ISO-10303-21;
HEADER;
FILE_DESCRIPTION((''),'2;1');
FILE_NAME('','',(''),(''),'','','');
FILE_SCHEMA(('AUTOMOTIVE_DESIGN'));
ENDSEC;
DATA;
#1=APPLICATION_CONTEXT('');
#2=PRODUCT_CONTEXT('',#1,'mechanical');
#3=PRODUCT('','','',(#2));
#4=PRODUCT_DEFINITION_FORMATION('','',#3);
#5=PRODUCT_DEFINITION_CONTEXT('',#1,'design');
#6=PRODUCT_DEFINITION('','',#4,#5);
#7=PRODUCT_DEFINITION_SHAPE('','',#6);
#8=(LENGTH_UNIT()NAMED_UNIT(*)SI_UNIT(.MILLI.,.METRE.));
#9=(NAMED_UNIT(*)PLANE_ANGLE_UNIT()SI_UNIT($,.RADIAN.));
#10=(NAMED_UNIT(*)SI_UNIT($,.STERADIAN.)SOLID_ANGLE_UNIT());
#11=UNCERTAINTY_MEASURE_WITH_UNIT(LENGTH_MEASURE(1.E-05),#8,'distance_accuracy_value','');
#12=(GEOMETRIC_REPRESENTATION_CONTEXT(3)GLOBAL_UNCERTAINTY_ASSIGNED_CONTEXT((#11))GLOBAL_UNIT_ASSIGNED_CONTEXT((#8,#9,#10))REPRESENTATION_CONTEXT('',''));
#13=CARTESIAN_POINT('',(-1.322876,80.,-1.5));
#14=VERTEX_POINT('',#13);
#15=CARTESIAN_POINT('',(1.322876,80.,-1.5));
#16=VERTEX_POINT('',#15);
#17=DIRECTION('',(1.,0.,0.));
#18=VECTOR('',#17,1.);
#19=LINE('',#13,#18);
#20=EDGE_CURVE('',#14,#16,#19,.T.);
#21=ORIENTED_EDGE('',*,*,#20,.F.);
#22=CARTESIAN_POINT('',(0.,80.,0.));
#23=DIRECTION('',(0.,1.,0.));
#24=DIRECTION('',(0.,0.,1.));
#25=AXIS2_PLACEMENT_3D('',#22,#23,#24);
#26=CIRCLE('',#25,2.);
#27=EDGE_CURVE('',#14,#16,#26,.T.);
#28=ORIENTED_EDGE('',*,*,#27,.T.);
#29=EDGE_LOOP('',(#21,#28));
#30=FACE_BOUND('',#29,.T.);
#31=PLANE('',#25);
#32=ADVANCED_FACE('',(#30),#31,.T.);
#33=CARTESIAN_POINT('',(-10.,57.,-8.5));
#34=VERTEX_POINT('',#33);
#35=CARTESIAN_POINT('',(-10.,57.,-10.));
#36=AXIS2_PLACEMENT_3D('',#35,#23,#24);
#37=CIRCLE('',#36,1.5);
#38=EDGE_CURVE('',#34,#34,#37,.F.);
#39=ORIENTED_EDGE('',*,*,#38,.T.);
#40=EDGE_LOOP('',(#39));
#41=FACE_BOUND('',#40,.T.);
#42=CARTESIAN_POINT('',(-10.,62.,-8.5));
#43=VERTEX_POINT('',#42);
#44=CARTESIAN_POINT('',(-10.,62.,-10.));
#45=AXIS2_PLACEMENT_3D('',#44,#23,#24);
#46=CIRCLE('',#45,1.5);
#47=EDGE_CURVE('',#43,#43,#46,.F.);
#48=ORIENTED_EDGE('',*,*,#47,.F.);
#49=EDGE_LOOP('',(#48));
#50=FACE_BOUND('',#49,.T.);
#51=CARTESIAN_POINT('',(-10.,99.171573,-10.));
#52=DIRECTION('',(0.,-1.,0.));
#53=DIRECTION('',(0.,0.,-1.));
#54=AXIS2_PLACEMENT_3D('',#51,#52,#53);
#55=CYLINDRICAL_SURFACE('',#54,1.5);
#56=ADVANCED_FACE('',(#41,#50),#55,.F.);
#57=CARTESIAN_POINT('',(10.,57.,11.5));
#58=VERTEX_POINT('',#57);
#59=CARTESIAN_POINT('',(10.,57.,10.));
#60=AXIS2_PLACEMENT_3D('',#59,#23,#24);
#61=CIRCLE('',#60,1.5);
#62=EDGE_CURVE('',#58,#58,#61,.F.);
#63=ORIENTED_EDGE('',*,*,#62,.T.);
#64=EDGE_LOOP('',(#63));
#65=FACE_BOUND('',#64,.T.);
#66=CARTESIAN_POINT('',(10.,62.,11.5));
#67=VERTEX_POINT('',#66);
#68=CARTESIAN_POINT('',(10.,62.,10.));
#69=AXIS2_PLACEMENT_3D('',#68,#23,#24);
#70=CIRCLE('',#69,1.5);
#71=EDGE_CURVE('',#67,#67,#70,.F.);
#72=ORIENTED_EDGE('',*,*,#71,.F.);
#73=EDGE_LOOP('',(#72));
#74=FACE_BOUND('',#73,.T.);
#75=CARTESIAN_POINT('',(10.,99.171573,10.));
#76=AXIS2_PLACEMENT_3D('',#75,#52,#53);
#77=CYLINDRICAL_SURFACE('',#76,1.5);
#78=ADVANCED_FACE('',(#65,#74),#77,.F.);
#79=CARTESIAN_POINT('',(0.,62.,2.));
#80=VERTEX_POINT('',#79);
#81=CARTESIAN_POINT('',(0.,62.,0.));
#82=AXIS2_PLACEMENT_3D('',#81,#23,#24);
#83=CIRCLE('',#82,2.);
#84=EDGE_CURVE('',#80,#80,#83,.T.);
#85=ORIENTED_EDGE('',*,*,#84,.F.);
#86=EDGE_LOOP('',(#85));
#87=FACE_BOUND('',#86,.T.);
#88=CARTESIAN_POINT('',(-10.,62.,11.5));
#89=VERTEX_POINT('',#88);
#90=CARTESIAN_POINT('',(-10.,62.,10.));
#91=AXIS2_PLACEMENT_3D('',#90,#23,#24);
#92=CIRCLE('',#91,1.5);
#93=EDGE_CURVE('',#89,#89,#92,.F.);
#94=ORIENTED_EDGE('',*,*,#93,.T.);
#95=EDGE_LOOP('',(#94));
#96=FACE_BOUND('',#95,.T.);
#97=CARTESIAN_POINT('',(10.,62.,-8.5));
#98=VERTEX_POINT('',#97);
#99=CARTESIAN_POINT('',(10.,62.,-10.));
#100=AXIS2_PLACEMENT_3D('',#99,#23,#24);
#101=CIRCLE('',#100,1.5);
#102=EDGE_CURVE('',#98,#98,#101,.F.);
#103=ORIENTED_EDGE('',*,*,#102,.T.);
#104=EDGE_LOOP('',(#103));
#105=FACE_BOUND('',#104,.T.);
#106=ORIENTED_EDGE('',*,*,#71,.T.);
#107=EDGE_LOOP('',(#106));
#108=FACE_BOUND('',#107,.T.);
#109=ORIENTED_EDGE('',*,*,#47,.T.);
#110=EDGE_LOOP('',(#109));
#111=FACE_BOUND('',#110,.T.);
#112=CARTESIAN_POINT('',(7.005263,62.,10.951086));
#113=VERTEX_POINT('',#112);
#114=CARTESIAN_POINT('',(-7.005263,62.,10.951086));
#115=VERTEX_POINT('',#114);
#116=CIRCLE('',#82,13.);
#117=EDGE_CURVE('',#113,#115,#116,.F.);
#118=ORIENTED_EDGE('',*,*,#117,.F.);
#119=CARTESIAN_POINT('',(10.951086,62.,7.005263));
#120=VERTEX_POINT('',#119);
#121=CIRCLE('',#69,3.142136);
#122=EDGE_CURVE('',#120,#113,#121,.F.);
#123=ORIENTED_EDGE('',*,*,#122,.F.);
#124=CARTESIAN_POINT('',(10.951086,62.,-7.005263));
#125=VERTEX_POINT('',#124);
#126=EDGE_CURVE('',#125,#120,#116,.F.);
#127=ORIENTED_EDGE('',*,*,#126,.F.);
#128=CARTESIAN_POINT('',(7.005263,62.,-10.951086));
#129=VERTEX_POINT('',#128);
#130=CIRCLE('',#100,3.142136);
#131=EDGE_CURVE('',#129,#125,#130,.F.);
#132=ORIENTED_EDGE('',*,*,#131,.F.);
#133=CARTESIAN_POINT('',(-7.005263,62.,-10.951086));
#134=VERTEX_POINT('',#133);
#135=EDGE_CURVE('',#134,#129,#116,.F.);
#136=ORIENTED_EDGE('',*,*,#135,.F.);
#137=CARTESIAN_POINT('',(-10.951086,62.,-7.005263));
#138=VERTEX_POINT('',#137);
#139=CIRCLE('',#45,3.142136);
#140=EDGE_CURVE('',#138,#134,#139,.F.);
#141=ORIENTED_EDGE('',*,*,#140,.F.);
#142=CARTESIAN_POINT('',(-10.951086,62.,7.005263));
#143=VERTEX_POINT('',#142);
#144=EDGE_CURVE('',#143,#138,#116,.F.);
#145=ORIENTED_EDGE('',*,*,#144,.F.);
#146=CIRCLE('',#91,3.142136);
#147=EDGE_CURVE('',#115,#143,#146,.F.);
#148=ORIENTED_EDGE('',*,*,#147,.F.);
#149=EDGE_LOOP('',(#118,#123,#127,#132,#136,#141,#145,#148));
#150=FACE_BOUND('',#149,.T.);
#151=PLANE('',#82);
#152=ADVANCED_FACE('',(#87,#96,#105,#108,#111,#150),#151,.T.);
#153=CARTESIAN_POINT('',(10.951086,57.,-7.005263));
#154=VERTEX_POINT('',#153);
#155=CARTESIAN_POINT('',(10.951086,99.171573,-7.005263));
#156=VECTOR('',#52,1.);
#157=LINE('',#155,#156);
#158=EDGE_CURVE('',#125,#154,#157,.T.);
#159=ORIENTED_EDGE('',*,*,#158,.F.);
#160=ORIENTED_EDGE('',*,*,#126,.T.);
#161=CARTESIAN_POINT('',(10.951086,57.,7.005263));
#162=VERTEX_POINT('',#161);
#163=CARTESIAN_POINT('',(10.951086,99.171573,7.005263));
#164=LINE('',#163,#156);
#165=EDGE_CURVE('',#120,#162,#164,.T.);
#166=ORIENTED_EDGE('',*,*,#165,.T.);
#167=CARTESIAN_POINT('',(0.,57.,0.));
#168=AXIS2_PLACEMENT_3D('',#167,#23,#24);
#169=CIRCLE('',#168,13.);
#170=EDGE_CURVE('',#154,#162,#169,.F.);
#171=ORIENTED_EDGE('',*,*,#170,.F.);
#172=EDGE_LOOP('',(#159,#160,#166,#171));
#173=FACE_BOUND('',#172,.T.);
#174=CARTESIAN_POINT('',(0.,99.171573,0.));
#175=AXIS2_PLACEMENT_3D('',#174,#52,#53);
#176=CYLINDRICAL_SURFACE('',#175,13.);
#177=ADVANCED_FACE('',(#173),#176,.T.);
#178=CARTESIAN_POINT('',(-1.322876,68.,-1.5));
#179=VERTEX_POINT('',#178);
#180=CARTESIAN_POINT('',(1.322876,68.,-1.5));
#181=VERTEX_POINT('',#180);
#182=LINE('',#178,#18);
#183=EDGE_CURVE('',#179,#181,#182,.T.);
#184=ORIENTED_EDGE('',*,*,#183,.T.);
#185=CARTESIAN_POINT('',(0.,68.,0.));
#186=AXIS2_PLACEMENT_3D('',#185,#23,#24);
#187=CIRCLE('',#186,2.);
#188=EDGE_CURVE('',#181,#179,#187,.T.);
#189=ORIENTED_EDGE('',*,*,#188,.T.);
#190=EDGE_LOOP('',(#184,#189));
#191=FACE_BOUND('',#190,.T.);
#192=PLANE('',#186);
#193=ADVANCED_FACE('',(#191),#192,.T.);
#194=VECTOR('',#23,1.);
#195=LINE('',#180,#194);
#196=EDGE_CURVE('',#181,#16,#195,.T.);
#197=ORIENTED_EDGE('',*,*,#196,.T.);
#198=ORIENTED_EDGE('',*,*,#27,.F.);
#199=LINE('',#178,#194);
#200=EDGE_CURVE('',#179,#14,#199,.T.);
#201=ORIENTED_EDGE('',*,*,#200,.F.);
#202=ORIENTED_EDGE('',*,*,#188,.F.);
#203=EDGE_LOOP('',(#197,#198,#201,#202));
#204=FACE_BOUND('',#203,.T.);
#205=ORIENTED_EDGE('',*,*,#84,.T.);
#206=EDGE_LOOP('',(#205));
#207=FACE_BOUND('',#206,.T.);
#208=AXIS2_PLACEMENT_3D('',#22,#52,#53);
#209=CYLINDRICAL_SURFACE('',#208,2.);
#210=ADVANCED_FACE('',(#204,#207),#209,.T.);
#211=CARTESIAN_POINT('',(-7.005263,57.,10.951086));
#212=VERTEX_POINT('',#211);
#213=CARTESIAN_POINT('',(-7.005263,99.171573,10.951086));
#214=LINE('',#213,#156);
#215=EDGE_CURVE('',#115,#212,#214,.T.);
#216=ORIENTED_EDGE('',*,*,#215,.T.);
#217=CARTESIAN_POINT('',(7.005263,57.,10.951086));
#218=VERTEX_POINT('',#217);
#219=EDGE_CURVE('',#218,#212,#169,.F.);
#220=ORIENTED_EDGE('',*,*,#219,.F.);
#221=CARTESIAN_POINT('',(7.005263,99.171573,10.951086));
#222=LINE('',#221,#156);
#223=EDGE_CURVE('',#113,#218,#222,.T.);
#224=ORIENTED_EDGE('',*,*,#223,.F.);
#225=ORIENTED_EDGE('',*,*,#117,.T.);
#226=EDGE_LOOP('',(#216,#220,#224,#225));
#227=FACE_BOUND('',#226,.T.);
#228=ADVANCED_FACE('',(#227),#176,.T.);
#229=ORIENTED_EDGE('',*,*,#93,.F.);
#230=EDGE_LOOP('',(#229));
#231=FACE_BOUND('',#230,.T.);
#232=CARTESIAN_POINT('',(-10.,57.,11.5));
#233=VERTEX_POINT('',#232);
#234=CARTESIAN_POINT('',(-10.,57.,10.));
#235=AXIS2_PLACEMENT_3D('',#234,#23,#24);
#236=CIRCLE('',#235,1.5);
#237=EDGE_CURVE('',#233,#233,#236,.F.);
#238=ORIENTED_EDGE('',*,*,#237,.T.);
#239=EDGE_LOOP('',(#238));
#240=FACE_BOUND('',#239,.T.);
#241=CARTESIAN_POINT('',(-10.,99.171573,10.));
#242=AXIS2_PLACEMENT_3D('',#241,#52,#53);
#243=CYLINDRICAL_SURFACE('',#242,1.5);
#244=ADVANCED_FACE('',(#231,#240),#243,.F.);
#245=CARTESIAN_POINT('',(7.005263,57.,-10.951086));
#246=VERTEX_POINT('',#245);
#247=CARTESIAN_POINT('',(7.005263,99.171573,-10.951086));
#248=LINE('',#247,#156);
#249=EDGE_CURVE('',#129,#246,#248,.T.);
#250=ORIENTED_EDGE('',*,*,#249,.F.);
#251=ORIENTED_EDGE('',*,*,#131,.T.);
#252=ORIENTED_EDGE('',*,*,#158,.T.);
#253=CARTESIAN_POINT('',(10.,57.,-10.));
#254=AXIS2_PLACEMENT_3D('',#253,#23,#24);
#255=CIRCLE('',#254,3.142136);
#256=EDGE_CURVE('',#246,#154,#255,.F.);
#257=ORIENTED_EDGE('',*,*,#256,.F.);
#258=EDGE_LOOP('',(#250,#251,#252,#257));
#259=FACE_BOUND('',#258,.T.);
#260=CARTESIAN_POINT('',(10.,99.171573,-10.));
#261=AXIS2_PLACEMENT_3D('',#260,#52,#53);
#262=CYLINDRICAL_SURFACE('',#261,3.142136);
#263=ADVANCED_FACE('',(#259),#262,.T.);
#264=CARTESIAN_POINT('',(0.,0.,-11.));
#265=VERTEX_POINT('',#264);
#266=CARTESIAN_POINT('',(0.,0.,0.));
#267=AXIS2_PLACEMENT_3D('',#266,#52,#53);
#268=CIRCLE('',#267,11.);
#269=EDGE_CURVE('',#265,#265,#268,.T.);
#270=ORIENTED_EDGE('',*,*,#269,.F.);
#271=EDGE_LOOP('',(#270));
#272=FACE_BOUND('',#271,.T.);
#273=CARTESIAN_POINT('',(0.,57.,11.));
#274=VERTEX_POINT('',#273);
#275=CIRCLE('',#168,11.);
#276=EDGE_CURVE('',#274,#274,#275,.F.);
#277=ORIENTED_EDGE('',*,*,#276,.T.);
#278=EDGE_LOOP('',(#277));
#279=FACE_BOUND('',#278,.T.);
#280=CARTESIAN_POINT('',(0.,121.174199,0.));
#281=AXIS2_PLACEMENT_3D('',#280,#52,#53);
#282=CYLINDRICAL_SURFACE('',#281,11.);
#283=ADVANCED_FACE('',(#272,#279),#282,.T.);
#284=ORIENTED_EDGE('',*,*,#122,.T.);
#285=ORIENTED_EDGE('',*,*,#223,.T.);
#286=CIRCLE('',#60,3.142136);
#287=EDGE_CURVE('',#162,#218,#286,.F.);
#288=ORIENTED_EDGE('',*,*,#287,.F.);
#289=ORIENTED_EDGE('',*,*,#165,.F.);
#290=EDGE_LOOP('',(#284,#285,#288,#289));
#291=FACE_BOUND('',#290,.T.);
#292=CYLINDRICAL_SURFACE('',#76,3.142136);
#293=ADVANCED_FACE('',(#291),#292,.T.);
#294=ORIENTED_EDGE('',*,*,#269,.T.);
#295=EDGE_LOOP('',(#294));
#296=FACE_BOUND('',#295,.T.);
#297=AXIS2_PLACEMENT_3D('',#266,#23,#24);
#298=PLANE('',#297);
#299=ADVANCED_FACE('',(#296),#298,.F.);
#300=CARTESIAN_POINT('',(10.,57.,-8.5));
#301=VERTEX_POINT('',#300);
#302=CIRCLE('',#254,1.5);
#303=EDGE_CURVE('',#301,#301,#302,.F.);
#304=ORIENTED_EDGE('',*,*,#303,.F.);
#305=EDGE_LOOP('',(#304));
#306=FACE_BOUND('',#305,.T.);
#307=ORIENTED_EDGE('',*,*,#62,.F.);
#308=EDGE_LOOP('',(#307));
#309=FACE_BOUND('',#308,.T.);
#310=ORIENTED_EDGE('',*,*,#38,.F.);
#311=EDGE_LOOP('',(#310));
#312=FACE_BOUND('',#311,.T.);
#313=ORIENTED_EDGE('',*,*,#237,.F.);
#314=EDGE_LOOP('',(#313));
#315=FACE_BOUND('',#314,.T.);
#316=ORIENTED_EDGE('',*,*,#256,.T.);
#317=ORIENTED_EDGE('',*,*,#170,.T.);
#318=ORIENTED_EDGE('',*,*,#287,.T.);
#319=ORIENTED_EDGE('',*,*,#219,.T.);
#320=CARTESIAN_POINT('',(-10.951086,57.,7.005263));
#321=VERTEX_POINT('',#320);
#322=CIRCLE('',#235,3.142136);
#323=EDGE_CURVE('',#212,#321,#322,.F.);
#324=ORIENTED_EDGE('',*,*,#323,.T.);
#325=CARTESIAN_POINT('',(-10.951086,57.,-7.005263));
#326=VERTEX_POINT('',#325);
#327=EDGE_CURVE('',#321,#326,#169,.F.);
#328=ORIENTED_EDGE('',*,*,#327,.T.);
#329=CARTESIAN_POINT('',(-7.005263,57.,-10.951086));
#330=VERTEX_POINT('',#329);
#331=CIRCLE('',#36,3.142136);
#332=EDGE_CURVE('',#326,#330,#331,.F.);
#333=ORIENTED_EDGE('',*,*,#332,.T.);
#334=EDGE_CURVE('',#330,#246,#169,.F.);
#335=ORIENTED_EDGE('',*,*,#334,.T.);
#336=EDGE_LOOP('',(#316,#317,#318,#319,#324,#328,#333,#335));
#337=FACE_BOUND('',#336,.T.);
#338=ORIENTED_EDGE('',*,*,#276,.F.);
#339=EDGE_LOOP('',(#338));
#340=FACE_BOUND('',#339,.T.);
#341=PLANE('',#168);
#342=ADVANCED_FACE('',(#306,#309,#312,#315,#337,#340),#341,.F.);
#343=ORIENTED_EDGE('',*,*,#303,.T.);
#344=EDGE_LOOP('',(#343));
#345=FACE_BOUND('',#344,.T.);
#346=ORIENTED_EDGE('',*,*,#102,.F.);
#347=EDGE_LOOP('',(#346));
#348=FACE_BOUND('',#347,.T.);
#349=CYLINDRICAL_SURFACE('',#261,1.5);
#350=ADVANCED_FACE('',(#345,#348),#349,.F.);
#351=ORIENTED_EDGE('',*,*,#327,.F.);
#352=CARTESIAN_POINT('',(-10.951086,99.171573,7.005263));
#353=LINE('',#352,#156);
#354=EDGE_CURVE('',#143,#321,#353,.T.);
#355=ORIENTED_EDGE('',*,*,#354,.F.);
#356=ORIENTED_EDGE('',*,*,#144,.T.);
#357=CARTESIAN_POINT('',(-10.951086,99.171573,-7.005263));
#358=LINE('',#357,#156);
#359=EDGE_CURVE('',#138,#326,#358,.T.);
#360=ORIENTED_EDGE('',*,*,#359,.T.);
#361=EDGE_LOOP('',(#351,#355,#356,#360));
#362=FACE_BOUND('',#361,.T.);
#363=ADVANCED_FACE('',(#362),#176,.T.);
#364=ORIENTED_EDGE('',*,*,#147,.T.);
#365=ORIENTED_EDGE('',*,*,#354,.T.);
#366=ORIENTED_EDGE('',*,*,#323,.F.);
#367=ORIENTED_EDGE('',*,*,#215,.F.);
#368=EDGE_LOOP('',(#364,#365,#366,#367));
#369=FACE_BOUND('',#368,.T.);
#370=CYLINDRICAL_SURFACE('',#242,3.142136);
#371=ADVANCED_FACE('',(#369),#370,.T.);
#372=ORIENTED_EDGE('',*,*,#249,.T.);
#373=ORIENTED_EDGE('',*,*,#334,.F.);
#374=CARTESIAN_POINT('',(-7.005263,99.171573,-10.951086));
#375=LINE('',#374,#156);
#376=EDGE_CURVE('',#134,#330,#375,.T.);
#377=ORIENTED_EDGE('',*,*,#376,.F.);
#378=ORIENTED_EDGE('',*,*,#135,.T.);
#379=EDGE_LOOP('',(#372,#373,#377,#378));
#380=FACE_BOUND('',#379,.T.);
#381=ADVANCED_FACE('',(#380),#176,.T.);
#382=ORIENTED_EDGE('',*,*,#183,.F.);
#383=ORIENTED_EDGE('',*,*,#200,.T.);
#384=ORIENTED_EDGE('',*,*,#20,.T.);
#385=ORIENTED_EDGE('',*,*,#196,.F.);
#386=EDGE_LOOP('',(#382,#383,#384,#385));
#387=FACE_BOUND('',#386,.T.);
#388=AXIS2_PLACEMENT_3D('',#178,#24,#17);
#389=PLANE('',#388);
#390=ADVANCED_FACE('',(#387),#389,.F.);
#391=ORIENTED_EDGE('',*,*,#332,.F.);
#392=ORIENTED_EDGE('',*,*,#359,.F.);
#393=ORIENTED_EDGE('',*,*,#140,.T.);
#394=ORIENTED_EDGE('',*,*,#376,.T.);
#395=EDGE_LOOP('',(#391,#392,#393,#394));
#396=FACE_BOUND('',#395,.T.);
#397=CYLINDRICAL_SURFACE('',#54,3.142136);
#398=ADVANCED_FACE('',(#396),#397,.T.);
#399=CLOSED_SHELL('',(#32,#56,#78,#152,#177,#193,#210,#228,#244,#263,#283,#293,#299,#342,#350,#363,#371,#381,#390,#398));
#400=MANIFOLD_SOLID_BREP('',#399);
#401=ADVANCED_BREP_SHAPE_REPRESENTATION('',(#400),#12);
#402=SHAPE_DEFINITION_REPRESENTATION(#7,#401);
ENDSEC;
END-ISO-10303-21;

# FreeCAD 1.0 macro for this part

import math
import FreeCAD as App
import Part
import Sketcher

doc = App.newDocument("Part")
params = doc.addObject("Spreadsheet::Sheet", "Params")
for row, (alias, value) in enumerate([
    ("sketch1_diameter", "22 mm"),
    ("pad1_length", "62 mm"),
    ("sketch2_diameter", "4 mm"),
    ("pad2_length", "18 mm"),
    ("sketch3_diameter", "3 mm"),
    ("sketch3_diameter2", "22 mm"),
    ("sketch3_radius", "13 mm"),
    ("pad3_length", "62 mm"),
    ("sketch4_diameter", "22 mm"),
    ("pocket1_length", "57 mm"),
    ("sketch5_radius", "2 mm"),
    ("pocket2_length", "12 mm"),
], start=1):
    params.set(f"A{row}", alias)
    params.set(f"B{row}", "=" + value)
    params.setAlias(f"B{row}", alias)

body = doc.addObject("PartDesign::Body", "Body")

# Sketch on XZ plane
sketch1 = doc.addObject("Sketcher::SketchObject", "Sketch")
body.addObject(sketch1)
sketch1.AttachmentSupport = (doc.XZ_Plane, [""])
sketch1.MapMode = "FlatFace"
sketch1.addGeometry(Part.Circle(App.Vector(0, 0, 0), App.Vector(0, 0, 1), 11), False)
sketch1.addConstraint([
    Sketcher.Constraint("Coincident", 0, 3, -1, 1),
    Sketcher.Constraint("Diameter", 0, 22.0),
])
sketch1.setExpression("Constraints[1]", "Params.sketch1_diameter")
pad1 = doc.addObject("PartDesign::Pad", "Pad")
body.addObject(pad1)
pad1.Profile = sketch1
pad1.setExpression("Length", "Params.pad1_length")
pad1.Reversed = True

# Sketch on XZ plane
sketch2 = doc.addObject("Sketcher::SketchObject", "Sketch001")
body.addObject(sketch2)
sketch2.AttachmentSupport = (doc.XZ_Plane, [""])
sketch2.MapMode = "FlatFace"
sketch2.AttachmentOffset = App.Placement(App.Vector(0, 0, -62), App.Rotation())
sketch2.addGeometry(Part.Circle(App.Vector(0, 0, 0), App.Vector(0, 0, 1), 2), False)
sketch2.addConstraint([
    Sketcher.Constraint("Coincident", 0, 3, -1, 1),
    Sketcher.Constraint("Diameter", 0, 4.0),
])
sketch2.setExpression("Constraints[1]", "Params.sketch2_diameter")
pad2 = doc.addObject("PartDesign::Pad", "Pad001")
body.addObject(pad2)
pad2.Profile = sketch2
pad2.setExpression("Length", "Params.pad2_length")
pad2.Reversed = True

# Sketch on XZ plane
sketch3 = doc.addObject("Sketcher::SketchObject", "Sketch002")
body.addObject(sketch3)
sketch3.AttachmentSupport = (doc.XZ_Plane, [""])
sketch3.MapMode = "FlatFace"
sketch3.addGeometry([
    Part.ArcOfCircle(Part.Circle(App.Vector(0, 0, 0), App.Vector(0, 0, 1), 13), math.radians(-33), math.radians(33)),  # 0
    Part.ArcOfCircle(Part.Circle(App.Vector(10, 10, 0), App.Vector(0, 0, 1), 3.1), math.radians(-72), math.radians(162)),  # 1
    Part.ArcOfCircle(Part.Circle(App.Vector(0, 0, 0), App.Vector(0, 0, 1), 13), math.radians(57), math.radians(123)),  # 2
    Part.ArcOfCircle(Part.Circle(App.Vector(-10, 10, 0), App.Vector(0, 0, 1), 3.1), math.radians(18), math.radians(252)),  # 3
    Part.ArcOfCircle(Part.Circle(App.Vector(0, 0, 0), App.Vector(0, 0, 1), 13), math.radians(147), math.radians(213)),  # 4
    Part.ArcOfCircle(Part.Circle(App.Vector(-10, -10, 0), App.Vector(0, 0, 1), 3.1), math.radians(108), math.radians(342)),  # 5
    Part.ArcOfCircle(Part.Circle(App.Vector(0, 0, 0), App.Vector(0, 0, 1), 13), math.radians(-123), math.radians(-57)),  # 6
    Part.ArcOfCircle(Part.Circle(App.Vector(10, -10, 0), App.Vector(0, 0, 1), 3.1), math.radians(-162), math.radians(72)),  # 7
    Part.Circle(App.Vector(-10, -10, 0), App.Vector(0, 0, 1), 1.5),  # 8
    Part.Circle(App.Vector(10, -10, 0), App.Vector(0, 0, 1), 1.5),  # 9
    Part.Circle(App.Vector(-10, 10, 0), App.Vector(0, 0, 1), 1.5),  # 10
    Part.Circle(App.Vector(0, 0, 0), App.Vector(0, 0, 1), 11),  # 11
    Part.Circle(App.Vector(10, 10, 0), App.Vector(0, 0, 1), 1.5),  # 12
], False)
sketch3.addConstraint([
    Sketcher.Constraint("Coincident", 0, 2, 1, 1),
    Sketcher.Constraint("Coincident", 1, 2, 2, 1),
    Sketcher.Constraint("Coincident", 2, 2, 3, 1),
    Sketcher.Constraint("Coincident", 3, 2, 4, 1),
    Sketcher.Constraint("Coincident", 4, 2, 5, 1),
    Sketcher.Constraint("Coincident", 5, 2, 6, 1),
    Sketcher.Constraint("Coincident", 6, 2, 7, 1),
    Sketcher.Constraint("Coincident", 7, 2, 0, 1),
    Sketcher.Constraint("Coincident", 0, 3, -1, 1),
    Sketcher.Constraint("Coincident", 2, 3, -1, 1),
    Sketcher.Constraint("Coincident", 4, 3, -1, 1),
    Sketcher.Constraint("Coincident", 6, 3, -1, 1),
    Sketcher.Constraint("Coincident", 11, 3, -1, 1),
    Sketcher.Constraint("Coincident", 8, 3, 5, 3),
    Sketcher.Constraint("Coincident", 9, 3, 7, 3),
    Sketcher.Constraint("Coincident", 10, 3, 3, 3),
    Sketcher.Constraint("Coincident", 12, 3, 1, 3),
    Sketcher.Constraint("Equal", 0, 2),
    Sketcher.Constraint("Equal", 1, 3),
    Sketcher.Constraint("Equal", 2, 4),
    Sketcher.Constraint("Equal", 3, 5),
    Sketcher.Constraint("Equal", 4, 6),
    Sketcher.Constraint("Equal", 5, 7),
    Sketcher.Constraint("Equal", 8, 9),
    Sketcher.Constraint("Equal", 9, 10),
    Sketcher.Constraint("Equal", 10, 12),
    Sketcher.Constraint("Symmetric", 1, 3, 5, 3, -1, 1),
    Sketcher.Constraint("Symmetric", 3, 3, 7, 3, -1, 1),
    Sketcher.Constraint("Symmetric", 1, 3, 3, 3, -2),
    Sketcher.Constraint("Diameter", 8, 3.0),
    Sketcher.Constraint("Diameter", 11, 22.0),
    Sketcher.Constraint("Radius", 0, 13.0),
    Sketcher.Constraint("DistanceX", -1, 1, 1, 3, 10.0),
    Sketcher.Constraint("DistanceY", -1, 1, 1, 3, 10.0),
    Sketcher.Constraint("Radius", 1, 3.142136),
])
sketch3.setExpression("Constraints[29]", "Params.sketch3_diameter")
sketch3.setExpression("Constraints[30]", "Params.sketch3_diameter2")
sketch3.setExpression("Constraints[31]", "Params.sketch3_radius")
pad3 = doc.addObject("PartDesign::Pad", "Pad002")
body.addObject(pad3)
pad3.Profile = sketch3
pad3.setExpression("Length", "Params.pad3_length")
pad3.Reversed = True

# Sketch on XZ plane
sketch4 = doc.addObject("Sketcher::SketchObject", "Sketch003")
body.addObject(sketch4)
sketch4.AttachmentSupport = (doc.XZ_Plane, [""])
sketch4.MapMode = "FlatFace"
sketch4.addGeometry([
    Part.Circle(App.Vector(0, 0, 0), App.Vector(0, 0, 1), 21),
    Part.Circle(App.Vector(0, 0, 0), App.Vector(0, 0, 1), 11),
], False)
sketch4.addConstraint([
    Sketcher.Constraint("Coincident", 0, 3, -1, 1),
    Sketcher.Constraint("Coincident", 1, 3, -1, 1),
    Sketcher.Constraint("Diameter", 1, 22.0),
    Sketcher.Constraint("Diameter", 0, 41.842477),
])
sketch4.setExpression("Constraints[2]", "Params.sketch4_diameter")
pocket1 = doc.addObject("PartDesign::Pocket", "Pocket")
body.addObject(pocket1)
pocket1.Profile = sketch4
pocket1.setExpression("Length", "Params.pocket1_length")

# Sketch on XZ plane
sketch5 = doc.addObject("Sketcher::SketchObject", "Sketch004")
body.addObject(sketch5)
sketch5.AttachmentSupport = (doc.XZ_Plane, [""])
sketch5.MapMode = "FlatFace"
sketch5.AttachmentOffset = App.Placement(App.Vector(0, 0, -68), App.Rotation())
sketch5.addGeometry([
    Part.LineSegment(App.Vector(-1.3, -1.5, 0), App.Vector(1.3, -1.5, 0)),
    Part.ArcOfCircle(Part.Circle(App.Vector(0, 0, 0), App.Vector(0, 0, 1), 2), math.radians(-131), math.radians(-49)),
], False)
sketch5.addConstraint([
    Sketcher.Constraint("Coincident", 0, 1, 1, 1),
    Sketcher.Constraint("Coincident", 1, 2, 0, 2),
    Sketcher.Constraint("Horizontal", 0),
    Sketcher.Constraint("Coincident", 1, 3, -1, 1),
    Sketcher.Constraint("Radius", 1, 2.0),
    Sketcher.Constraint("DistanceY", 0, 1, -1, 1, 1.5),
])
sketch5.setExpression("Constraints[4]", "Params.sketch5_radius")
pocket2 = doc.addObject("PartDesign::Pocket", "Pocket001")
body.addObject(pocket2)
pocket2.Profile = sketch5
pocket2.setExpression("Length", "Params.pocket2_length")

doc.recompute()
